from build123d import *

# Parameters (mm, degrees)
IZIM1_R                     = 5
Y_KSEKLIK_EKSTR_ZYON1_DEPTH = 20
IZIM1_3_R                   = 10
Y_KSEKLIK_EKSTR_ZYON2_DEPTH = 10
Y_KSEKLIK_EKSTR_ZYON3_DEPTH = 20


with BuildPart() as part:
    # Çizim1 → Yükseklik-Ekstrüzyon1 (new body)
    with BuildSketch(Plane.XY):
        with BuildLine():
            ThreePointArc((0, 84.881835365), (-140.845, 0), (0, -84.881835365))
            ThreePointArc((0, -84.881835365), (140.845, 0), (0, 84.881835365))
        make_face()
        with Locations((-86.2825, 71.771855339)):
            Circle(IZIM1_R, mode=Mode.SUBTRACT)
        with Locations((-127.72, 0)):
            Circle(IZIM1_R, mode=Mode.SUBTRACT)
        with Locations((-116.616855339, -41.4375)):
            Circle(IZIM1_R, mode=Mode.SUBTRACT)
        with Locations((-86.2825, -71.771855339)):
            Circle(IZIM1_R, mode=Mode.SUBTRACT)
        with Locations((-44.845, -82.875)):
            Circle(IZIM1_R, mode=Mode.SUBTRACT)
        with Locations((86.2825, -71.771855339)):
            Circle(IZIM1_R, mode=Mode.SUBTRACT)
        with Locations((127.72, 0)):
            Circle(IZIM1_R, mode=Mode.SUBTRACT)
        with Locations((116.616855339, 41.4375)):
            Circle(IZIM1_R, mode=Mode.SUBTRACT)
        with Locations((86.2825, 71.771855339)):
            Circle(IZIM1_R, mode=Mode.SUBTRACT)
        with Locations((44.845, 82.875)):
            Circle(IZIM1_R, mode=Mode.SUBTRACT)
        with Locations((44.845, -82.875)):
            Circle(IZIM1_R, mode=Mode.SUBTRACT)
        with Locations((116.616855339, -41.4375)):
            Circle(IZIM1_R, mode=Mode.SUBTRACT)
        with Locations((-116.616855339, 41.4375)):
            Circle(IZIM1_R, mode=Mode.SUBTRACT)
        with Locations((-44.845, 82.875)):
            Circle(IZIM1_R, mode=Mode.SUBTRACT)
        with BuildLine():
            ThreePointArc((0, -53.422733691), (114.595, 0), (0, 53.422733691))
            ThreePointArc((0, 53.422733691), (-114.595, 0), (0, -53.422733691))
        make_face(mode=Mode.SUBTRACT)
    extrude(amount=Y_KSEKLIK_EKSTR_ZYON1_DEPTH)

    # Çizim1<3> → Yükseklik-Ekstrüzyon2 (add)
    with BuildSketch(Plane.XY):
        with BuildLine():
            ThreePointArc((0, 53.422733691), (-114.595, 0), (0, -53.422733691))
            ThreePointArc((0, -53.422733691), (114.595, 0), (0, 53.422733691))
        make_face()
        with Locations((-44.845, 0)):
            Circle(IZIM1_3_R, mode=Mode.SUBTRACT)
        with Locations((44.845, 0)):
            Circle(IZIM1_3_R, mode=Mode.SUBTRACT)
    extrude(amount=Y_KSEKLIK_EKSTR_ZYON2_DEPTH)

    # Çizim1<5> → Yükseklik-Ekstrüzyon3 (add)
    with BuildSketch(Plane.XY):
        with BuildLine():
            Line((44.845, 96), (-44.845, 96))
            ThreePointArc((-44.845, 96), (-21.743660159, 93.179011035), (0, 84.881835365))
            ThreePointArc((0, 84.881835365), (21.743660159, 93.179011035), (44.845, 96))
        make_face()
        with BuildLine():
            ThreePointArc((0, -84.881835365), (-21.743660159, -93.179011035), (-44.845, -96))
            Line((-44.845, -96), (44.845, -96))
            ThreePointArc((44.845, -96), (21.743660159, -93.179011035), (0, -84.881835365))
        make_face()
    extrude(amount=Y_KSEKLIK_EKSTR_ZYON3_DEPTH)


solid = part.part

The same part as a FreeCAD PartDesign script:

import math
import FreeCAD as App
import Part
import Sketcher
Q = App.Units.Quantity

doc = App.newDocument("Part")
body = doc.addObject("PartDesign::Body", "Body")

sketch1 = body.newObject("Sketcher::SketchObject", "Sketch")
sketch1.AttachmentSupport = (doc.getObject("XY_Plane"), [""])
sketch1.MapMode = "FlatFace"
sketch1.addGeometry([
    Part.ArcOfCircle(Part.Circle(App.Vector(-44.845, 0, 0), App.Vector(0, 0, 1), 96), math.radians(62.15149), math.radians(297.84851)),
    Part.ArcOfCircle(Part.Circle(App.Vector(44.845, 0, 0), App.Vector(0, 0, 1), 96), math.radians(-117.84851), math.radians(117.84851)),
    Part.Circle(App.Vector(-86.2825, -71.771855, 0), App.Vector(0, 0, 1), 5),
    Part.Circle(App.Vector(-44.845, -82.875, 0), App.Vector(0, 0, 1), 5),
    Part.Circle(App.Vector(-116.616855, -41.4375, 0), App.Vector(0, 0, 1), 5),
    Part.Circle(App.Vector(44.845, -82.875, 0), App.Vector(0, 0, 1), 5),
    Part.Circle(App.Vector(86.2825, -71.771855, 0), App.Vector(0, 0, 1), 5),
    Part.Circle(App.Vector(116.616855, -41.4375, 0), App.Vector(0, 0, 1), 5),
    Part.Circle(App.Vector(-127.72, 0, 0), App.Vector(0, 0, 1), 5),
    Part.Circle(App.Vector(-116.616855, 41.4375, 0), App.Vector(0, 0, 1), 5),
    Part.Circle(App.Vector(-86.2825, 71.771855, 0), App.Vector(0, 0, 1), 5),
    Part.Circle(App.Vector(-44.845, 82.875, 0), App.Vector(0, 0, 1), 5),
    Part.ArcOfCircle(Part.Circle(App.Vector(44.845, 0, 0), App.Vector(0, 0, 1), 69.75), math.radians(-130.011329), math.radians(130.011329)),
    Part.ArcOfCircle(Part.Circle(App.Vector(-44.845, 0, 0), App.Vector(0, 0, 1), 69.75), math.radians(49.988671), math.radians(310.011329)),
    Part.Circle(App.Vector(127.72, 0, 0), App.Vector(0, 0, 1), 5),
    Part.Circle(App.Vector(116.616855, 41.4375, 0), App.Vector(0, 0, 1), 5),
    Part.Circle(App.Vector(44.845, 82.875, 0), App.Vector(0, 0, 1), 5),
    Part.Circle(App.Vector(86.2825, 71.771855, 0), App.Vector(0, 0, 1), 5),
], False)
sketch1.addConstraint([
    Sketcher.Constraint("Coincident", 0, 1, 1, 2),
    Sketcher.Constraint("Coincident", 1, 1, 0, 2),
    Sketcher.Constraint("Coincident", 12, 1, 13, 2),
    Sketcher.Constraint("Coincident", 13, 1, 12, 2),
    Sketcher.Constraint("Coincident", 12, 3, 1, 3),
    Sketcher.Constraint("Coincident", 13, 3, 0, 3),
    Sketcher.Constraint("Equal", 0, 1),
    Sketcher.Constraint("Equal", 2, 3),
    Sketcher.Constraint("Equal", 3, 4),
    Sketcher.Constraint("Equal", 4, 5),
    Sketcher.Constraint("Equal", 5, 6),
    Sketcher.Constraint("Equal", 6, 7),
    Sketcher.Constraint("Equal", 7, 8),
    Sketcher.Constraint("Equal", 8, 9),
    Sketcher.Constraint("Equal", 9, 10),
    Sketcher.Constraint("Equal", 10, 11),
    Sketcher.Constraint("Equal", 12, 13),
    Sketcher.Constraint("Equal", 11, 14),
    Sketcher.Constraint("Equal", 14, 15),
    Sketcher.Constraint("Equal", 15, 16),
    Sketcher.Constraint("Equal", 16, 17),
    Sketcher.Constraint("Symmetric", 0, 3, 1, 3, -1, 1),
    Sketcher.Constraint("Symmetric", 7, 3, 9, 3, -1, 1),
    Sketcher.Constraint("Symmetric", 6, 3, 10, 3, -1, 1),
    Sketcher.Constraint("Symmetric", 5, 3, 11, 3, -1, 1),
    Sketcher.Constraint("Symmetric", 8, 3, 14, 3, -1, 1),
    Sketcher.Constraint("Symmetric", 4, 3, 15, 3, -1, 1),
    Sketcher.Constraint("Symmetric", 3, 3, 16, 3, -1, 1),
    Sketcher.Constraint("Symmetric", 2, 3, 17, 3, -1, 1),
    Sketcher.Constraint("Symmetric", 3, 3, 5, 3, -2),
    Sketcher.Constraint("Symmetric", 2, 3, 6, 3, -2),
    Sketcher.Constraint("Symmetric", 4, 3, 7, 3, -2),
    Sketcher.Constraint("PointOnObject", 0, 3, -1),
    Sketcher.Constraint("PointOnObject", 8, 3, -1),
    Sketcher.Constraint("Vertical", 0, 3, 3, 3),
    Sketcher.Constraint("Diameter", 2, Q("10 mm")),
    Sketcher.Constraint("Radius", 0, Q("96 mm")),
    Sketcher.Constraint("Radius", 12, Q("69.75 mm")),
    Sketcher.Constraint("DistanceX", 8, 3, -1, 1, Q("127.72 mm")),
    Sketcher.Constraint("DistanceX", 0, 3, 1, 3, Q("89.69 mm")),
    Sketcher.Constraint("DistanceY", 3, 3, -1, 1, Q("82.875 mm")),
    Sketcher.Constraint("DistanceX", 2, 3, 6, 3, Q("172.565 mm")),
    Sketcher.Constraint("DistanceY", 4, 3, 9, 3, Q("82.875 mm")),
    Sketcher.Constraint("DistanceY", 2, 3, 10, 3, Q("143.543711 mm")),
    Sketcher.Constraint("DistanceX", 4, 3, -1, 1, Q("116.616855 mm")),
])
pad1 = body.newObject("PartDesign::Pad", "Pad")
pad1.Profile = sketch1
pad1.Length = 20

sketch2 = body.newObject("Sketcher::SketchObject", "Sketch001")
sketch2.AttachmentSupport = (doc.getObject("XY_Plane"), [""])
sketch2.MapMode = "FlatFace"
sketch2.addGeometry([
    Part.ArcOfCircle(Part.Circle(App.Vector(-44.845, 0, 0), App.Vector(0, 0, 1), 69.75), math.radians(49.988671), math.radians(310.011329)),
    Part.ArcOfCircle(Part.Circle(App.Vector(44.845, 0, 0), App.Vector(0, 0, 1), 69.75), math.radians(-130.011329), math.radians(130.011329)),
    Part.Circle(App.Vector(-44.845, 0, 0), App.Vector(0, 0, 1), 10),
    Part.Circle(App.Vector(44.845, 0, 0), App.Vector(0, 0, 1), 10),
], False)
sketch2.addConstraint([
    Sketcher.Constraint("Coincident", 0, 1, 1, 2),
    Sketcher.Constraint("Coincident", 1, 1, 0, 2),
    Sketcher.Constraint("Coincident", 2, 3, 0, 3),
    Sketcher.Constraint("Coincident", 3, 3, 1, 3),
    Sketcher.Constraint("Equal", 0, 1),
    Sketcher.Constraint("Equal", 2, 3),
    Sketcher.Constraint("Symmetric", 0, 3, 1, 3, -1, 1),
    Sketcher.Constraint("PointOnObject", 0, 3, -1),
    Sketcher.Constraint("Diameter", 2, Q("20 mm")),
    Sketcher.Constraint("Radius", 0, Q("69.75 mm")),
    Sketcher.Constraint("DistanceX", 0, 3, 1, 3, Q("89.69 mm")),
])
pad2 = body.newObject("PartDesign::Pad", "Pad001")
pad2.Profile = sketch2
pad2.Length = 10

sketch3 = body.newObject("Sketcher::SketchObject", "Sketch002")
sketch3.AttachmentSupport = (doc.getObject("XY_Plane"), [""])
sketch3.MapMode = "FlatFace"
sketch3.addGeometry([
    Part.LineSegment(App.Vector(44.845, 96, 0), App.Vector(-44.845, 96, 0)),
    Part.ArcOfCircle(Part.Circle(App.Vector(-44.845, 0, 0), App.Vector(0, 0, 1), 96), math.radians(62.15149), math.radians(90)),
    Part.ArcOfCircle(Part.Circle(App.Vector(44.845, 0, 0), App.Vector(0, 0, 1), 96), math.radians(90), math.radians(117.84851)),
    Part.ArcOfCircle(Part.Circle(App.Vector(-44.845, 0, 0), App.Vector(0, 0, 1), 96), math.radians(-90), math.radians(-62.15149)),
    Part.LineSegment(App.Vector(-44.845, -96, 0), App.Vector(44.845, -96, 0)),
    Part.ArcOfCircle(Part.Circle(App.Vector(44.845, 0, 0), App.Vector(0, 0, 1), 96), math.radians(-117.84851), math.radians(-90)),
], False)
sketch3.addConstraint([
    Sketcher.Constraint("Tangent", 0, 2, 1, 2),
    Sketcher.Constraint("Coincident", 1, 1, 2, 2),
    Sketcher.Constraint("Tangent", 2, 1, 0, 1),
    Sketcher.Constraint("Tangent", 3, 1, 4, 1),
    Sketcher.Constraint("Tangent", 4, 2, 5, 2),
    Sketcher.Constraint("Coincident", 5, 1, 3, 2),
    Sketcher.Constraint("Horizontal", 0),
    Sketcher.Constraint("Horizontal", 4),
    Sketcher.Constraint("Coincident", 3, 3, 1, 3),
    Sketcher.Constraint("Coincident", 5, 3, 2, 3),
    Sketcher.Constraint("Equal", 1, 2),
    Sketcher.Constraint("Equal", 2, 3),
    Sketcher.Constraint("Symmetric", 1, 3, 2, 3, -1, 1),
    Sketcher.Constraint("Radius", 1, Q("96 mm")),
    Sketcher.Constraint("DistanceX", 0, 2, 0, 1, Q("89.69 mm")),
])
pad3 = body.newObject("PartDesign::Pad", "Pad002")
pad3.Profile = sketch3
pad3.Length = 20

doc.recompute()
